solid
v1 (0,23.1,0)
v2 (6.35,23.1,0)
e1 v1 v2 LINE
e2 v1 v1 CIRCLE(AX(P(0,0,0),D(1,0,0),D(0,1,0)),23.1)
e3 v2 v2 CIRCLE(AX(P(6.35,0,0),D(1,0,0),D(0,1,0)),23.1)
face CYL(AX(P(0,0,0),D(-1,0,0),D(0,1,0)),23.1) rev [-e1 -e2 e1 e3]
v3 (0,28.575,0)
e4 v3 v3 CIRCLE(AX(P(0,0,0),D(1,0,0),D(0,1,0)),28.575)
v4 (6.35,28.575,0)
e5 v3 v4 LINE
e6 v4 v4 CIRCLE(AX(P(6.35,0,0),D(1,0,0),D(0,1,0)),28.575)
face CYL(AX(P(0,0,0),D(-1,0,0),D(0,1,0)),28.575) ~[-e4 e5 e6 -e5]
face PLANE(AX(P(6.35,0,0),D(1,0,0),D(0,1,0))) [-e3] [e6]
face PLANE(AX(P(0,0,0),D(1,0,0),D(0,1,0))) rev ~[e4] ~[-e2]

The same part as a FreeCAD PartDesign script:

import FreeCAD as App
import Part
import Sketcher
Q = App.Units.Quantity

doc = App.newDocument("Part")
body = doc.addObject("PartDesign::Body", "Body")

# Sketch on YZ plane
sketch1 = body.newObject("Sketcher::SketchObject", "Sketch")
sketch1.AttachmentSupport = (doc.getObject("YZ_Plane"), [""])
sketch1.MapMode = "FlatFace"
sketch1.addGeometry([
    Part.Circle(App.Vector(0, 0, 0), App.Vector(0, 0, 1), 29),
    Part.Circle(App.Vector(0, 0, 0), App.Vector(0, 0, 1), 23),
], False)
sketch1.addConstraint([
    Sketcher.Constraint("Coincident", 0, 3, -1, 1),
    Sketcher.Constraint("Coincident", 1, 3, -1, 1),
    Sketcher.Constraint("Diameter", 0, Q("2.25 in")),
    Sketcher.Constraint("Diameter", 1, Q("1.8189 in")),
])
pad1 = body.newObject("PartDesign::Pad", "Pad")
pad1.Profile = sketch1
pad1.Length = Q("0.25 in")

doc.recompute()
